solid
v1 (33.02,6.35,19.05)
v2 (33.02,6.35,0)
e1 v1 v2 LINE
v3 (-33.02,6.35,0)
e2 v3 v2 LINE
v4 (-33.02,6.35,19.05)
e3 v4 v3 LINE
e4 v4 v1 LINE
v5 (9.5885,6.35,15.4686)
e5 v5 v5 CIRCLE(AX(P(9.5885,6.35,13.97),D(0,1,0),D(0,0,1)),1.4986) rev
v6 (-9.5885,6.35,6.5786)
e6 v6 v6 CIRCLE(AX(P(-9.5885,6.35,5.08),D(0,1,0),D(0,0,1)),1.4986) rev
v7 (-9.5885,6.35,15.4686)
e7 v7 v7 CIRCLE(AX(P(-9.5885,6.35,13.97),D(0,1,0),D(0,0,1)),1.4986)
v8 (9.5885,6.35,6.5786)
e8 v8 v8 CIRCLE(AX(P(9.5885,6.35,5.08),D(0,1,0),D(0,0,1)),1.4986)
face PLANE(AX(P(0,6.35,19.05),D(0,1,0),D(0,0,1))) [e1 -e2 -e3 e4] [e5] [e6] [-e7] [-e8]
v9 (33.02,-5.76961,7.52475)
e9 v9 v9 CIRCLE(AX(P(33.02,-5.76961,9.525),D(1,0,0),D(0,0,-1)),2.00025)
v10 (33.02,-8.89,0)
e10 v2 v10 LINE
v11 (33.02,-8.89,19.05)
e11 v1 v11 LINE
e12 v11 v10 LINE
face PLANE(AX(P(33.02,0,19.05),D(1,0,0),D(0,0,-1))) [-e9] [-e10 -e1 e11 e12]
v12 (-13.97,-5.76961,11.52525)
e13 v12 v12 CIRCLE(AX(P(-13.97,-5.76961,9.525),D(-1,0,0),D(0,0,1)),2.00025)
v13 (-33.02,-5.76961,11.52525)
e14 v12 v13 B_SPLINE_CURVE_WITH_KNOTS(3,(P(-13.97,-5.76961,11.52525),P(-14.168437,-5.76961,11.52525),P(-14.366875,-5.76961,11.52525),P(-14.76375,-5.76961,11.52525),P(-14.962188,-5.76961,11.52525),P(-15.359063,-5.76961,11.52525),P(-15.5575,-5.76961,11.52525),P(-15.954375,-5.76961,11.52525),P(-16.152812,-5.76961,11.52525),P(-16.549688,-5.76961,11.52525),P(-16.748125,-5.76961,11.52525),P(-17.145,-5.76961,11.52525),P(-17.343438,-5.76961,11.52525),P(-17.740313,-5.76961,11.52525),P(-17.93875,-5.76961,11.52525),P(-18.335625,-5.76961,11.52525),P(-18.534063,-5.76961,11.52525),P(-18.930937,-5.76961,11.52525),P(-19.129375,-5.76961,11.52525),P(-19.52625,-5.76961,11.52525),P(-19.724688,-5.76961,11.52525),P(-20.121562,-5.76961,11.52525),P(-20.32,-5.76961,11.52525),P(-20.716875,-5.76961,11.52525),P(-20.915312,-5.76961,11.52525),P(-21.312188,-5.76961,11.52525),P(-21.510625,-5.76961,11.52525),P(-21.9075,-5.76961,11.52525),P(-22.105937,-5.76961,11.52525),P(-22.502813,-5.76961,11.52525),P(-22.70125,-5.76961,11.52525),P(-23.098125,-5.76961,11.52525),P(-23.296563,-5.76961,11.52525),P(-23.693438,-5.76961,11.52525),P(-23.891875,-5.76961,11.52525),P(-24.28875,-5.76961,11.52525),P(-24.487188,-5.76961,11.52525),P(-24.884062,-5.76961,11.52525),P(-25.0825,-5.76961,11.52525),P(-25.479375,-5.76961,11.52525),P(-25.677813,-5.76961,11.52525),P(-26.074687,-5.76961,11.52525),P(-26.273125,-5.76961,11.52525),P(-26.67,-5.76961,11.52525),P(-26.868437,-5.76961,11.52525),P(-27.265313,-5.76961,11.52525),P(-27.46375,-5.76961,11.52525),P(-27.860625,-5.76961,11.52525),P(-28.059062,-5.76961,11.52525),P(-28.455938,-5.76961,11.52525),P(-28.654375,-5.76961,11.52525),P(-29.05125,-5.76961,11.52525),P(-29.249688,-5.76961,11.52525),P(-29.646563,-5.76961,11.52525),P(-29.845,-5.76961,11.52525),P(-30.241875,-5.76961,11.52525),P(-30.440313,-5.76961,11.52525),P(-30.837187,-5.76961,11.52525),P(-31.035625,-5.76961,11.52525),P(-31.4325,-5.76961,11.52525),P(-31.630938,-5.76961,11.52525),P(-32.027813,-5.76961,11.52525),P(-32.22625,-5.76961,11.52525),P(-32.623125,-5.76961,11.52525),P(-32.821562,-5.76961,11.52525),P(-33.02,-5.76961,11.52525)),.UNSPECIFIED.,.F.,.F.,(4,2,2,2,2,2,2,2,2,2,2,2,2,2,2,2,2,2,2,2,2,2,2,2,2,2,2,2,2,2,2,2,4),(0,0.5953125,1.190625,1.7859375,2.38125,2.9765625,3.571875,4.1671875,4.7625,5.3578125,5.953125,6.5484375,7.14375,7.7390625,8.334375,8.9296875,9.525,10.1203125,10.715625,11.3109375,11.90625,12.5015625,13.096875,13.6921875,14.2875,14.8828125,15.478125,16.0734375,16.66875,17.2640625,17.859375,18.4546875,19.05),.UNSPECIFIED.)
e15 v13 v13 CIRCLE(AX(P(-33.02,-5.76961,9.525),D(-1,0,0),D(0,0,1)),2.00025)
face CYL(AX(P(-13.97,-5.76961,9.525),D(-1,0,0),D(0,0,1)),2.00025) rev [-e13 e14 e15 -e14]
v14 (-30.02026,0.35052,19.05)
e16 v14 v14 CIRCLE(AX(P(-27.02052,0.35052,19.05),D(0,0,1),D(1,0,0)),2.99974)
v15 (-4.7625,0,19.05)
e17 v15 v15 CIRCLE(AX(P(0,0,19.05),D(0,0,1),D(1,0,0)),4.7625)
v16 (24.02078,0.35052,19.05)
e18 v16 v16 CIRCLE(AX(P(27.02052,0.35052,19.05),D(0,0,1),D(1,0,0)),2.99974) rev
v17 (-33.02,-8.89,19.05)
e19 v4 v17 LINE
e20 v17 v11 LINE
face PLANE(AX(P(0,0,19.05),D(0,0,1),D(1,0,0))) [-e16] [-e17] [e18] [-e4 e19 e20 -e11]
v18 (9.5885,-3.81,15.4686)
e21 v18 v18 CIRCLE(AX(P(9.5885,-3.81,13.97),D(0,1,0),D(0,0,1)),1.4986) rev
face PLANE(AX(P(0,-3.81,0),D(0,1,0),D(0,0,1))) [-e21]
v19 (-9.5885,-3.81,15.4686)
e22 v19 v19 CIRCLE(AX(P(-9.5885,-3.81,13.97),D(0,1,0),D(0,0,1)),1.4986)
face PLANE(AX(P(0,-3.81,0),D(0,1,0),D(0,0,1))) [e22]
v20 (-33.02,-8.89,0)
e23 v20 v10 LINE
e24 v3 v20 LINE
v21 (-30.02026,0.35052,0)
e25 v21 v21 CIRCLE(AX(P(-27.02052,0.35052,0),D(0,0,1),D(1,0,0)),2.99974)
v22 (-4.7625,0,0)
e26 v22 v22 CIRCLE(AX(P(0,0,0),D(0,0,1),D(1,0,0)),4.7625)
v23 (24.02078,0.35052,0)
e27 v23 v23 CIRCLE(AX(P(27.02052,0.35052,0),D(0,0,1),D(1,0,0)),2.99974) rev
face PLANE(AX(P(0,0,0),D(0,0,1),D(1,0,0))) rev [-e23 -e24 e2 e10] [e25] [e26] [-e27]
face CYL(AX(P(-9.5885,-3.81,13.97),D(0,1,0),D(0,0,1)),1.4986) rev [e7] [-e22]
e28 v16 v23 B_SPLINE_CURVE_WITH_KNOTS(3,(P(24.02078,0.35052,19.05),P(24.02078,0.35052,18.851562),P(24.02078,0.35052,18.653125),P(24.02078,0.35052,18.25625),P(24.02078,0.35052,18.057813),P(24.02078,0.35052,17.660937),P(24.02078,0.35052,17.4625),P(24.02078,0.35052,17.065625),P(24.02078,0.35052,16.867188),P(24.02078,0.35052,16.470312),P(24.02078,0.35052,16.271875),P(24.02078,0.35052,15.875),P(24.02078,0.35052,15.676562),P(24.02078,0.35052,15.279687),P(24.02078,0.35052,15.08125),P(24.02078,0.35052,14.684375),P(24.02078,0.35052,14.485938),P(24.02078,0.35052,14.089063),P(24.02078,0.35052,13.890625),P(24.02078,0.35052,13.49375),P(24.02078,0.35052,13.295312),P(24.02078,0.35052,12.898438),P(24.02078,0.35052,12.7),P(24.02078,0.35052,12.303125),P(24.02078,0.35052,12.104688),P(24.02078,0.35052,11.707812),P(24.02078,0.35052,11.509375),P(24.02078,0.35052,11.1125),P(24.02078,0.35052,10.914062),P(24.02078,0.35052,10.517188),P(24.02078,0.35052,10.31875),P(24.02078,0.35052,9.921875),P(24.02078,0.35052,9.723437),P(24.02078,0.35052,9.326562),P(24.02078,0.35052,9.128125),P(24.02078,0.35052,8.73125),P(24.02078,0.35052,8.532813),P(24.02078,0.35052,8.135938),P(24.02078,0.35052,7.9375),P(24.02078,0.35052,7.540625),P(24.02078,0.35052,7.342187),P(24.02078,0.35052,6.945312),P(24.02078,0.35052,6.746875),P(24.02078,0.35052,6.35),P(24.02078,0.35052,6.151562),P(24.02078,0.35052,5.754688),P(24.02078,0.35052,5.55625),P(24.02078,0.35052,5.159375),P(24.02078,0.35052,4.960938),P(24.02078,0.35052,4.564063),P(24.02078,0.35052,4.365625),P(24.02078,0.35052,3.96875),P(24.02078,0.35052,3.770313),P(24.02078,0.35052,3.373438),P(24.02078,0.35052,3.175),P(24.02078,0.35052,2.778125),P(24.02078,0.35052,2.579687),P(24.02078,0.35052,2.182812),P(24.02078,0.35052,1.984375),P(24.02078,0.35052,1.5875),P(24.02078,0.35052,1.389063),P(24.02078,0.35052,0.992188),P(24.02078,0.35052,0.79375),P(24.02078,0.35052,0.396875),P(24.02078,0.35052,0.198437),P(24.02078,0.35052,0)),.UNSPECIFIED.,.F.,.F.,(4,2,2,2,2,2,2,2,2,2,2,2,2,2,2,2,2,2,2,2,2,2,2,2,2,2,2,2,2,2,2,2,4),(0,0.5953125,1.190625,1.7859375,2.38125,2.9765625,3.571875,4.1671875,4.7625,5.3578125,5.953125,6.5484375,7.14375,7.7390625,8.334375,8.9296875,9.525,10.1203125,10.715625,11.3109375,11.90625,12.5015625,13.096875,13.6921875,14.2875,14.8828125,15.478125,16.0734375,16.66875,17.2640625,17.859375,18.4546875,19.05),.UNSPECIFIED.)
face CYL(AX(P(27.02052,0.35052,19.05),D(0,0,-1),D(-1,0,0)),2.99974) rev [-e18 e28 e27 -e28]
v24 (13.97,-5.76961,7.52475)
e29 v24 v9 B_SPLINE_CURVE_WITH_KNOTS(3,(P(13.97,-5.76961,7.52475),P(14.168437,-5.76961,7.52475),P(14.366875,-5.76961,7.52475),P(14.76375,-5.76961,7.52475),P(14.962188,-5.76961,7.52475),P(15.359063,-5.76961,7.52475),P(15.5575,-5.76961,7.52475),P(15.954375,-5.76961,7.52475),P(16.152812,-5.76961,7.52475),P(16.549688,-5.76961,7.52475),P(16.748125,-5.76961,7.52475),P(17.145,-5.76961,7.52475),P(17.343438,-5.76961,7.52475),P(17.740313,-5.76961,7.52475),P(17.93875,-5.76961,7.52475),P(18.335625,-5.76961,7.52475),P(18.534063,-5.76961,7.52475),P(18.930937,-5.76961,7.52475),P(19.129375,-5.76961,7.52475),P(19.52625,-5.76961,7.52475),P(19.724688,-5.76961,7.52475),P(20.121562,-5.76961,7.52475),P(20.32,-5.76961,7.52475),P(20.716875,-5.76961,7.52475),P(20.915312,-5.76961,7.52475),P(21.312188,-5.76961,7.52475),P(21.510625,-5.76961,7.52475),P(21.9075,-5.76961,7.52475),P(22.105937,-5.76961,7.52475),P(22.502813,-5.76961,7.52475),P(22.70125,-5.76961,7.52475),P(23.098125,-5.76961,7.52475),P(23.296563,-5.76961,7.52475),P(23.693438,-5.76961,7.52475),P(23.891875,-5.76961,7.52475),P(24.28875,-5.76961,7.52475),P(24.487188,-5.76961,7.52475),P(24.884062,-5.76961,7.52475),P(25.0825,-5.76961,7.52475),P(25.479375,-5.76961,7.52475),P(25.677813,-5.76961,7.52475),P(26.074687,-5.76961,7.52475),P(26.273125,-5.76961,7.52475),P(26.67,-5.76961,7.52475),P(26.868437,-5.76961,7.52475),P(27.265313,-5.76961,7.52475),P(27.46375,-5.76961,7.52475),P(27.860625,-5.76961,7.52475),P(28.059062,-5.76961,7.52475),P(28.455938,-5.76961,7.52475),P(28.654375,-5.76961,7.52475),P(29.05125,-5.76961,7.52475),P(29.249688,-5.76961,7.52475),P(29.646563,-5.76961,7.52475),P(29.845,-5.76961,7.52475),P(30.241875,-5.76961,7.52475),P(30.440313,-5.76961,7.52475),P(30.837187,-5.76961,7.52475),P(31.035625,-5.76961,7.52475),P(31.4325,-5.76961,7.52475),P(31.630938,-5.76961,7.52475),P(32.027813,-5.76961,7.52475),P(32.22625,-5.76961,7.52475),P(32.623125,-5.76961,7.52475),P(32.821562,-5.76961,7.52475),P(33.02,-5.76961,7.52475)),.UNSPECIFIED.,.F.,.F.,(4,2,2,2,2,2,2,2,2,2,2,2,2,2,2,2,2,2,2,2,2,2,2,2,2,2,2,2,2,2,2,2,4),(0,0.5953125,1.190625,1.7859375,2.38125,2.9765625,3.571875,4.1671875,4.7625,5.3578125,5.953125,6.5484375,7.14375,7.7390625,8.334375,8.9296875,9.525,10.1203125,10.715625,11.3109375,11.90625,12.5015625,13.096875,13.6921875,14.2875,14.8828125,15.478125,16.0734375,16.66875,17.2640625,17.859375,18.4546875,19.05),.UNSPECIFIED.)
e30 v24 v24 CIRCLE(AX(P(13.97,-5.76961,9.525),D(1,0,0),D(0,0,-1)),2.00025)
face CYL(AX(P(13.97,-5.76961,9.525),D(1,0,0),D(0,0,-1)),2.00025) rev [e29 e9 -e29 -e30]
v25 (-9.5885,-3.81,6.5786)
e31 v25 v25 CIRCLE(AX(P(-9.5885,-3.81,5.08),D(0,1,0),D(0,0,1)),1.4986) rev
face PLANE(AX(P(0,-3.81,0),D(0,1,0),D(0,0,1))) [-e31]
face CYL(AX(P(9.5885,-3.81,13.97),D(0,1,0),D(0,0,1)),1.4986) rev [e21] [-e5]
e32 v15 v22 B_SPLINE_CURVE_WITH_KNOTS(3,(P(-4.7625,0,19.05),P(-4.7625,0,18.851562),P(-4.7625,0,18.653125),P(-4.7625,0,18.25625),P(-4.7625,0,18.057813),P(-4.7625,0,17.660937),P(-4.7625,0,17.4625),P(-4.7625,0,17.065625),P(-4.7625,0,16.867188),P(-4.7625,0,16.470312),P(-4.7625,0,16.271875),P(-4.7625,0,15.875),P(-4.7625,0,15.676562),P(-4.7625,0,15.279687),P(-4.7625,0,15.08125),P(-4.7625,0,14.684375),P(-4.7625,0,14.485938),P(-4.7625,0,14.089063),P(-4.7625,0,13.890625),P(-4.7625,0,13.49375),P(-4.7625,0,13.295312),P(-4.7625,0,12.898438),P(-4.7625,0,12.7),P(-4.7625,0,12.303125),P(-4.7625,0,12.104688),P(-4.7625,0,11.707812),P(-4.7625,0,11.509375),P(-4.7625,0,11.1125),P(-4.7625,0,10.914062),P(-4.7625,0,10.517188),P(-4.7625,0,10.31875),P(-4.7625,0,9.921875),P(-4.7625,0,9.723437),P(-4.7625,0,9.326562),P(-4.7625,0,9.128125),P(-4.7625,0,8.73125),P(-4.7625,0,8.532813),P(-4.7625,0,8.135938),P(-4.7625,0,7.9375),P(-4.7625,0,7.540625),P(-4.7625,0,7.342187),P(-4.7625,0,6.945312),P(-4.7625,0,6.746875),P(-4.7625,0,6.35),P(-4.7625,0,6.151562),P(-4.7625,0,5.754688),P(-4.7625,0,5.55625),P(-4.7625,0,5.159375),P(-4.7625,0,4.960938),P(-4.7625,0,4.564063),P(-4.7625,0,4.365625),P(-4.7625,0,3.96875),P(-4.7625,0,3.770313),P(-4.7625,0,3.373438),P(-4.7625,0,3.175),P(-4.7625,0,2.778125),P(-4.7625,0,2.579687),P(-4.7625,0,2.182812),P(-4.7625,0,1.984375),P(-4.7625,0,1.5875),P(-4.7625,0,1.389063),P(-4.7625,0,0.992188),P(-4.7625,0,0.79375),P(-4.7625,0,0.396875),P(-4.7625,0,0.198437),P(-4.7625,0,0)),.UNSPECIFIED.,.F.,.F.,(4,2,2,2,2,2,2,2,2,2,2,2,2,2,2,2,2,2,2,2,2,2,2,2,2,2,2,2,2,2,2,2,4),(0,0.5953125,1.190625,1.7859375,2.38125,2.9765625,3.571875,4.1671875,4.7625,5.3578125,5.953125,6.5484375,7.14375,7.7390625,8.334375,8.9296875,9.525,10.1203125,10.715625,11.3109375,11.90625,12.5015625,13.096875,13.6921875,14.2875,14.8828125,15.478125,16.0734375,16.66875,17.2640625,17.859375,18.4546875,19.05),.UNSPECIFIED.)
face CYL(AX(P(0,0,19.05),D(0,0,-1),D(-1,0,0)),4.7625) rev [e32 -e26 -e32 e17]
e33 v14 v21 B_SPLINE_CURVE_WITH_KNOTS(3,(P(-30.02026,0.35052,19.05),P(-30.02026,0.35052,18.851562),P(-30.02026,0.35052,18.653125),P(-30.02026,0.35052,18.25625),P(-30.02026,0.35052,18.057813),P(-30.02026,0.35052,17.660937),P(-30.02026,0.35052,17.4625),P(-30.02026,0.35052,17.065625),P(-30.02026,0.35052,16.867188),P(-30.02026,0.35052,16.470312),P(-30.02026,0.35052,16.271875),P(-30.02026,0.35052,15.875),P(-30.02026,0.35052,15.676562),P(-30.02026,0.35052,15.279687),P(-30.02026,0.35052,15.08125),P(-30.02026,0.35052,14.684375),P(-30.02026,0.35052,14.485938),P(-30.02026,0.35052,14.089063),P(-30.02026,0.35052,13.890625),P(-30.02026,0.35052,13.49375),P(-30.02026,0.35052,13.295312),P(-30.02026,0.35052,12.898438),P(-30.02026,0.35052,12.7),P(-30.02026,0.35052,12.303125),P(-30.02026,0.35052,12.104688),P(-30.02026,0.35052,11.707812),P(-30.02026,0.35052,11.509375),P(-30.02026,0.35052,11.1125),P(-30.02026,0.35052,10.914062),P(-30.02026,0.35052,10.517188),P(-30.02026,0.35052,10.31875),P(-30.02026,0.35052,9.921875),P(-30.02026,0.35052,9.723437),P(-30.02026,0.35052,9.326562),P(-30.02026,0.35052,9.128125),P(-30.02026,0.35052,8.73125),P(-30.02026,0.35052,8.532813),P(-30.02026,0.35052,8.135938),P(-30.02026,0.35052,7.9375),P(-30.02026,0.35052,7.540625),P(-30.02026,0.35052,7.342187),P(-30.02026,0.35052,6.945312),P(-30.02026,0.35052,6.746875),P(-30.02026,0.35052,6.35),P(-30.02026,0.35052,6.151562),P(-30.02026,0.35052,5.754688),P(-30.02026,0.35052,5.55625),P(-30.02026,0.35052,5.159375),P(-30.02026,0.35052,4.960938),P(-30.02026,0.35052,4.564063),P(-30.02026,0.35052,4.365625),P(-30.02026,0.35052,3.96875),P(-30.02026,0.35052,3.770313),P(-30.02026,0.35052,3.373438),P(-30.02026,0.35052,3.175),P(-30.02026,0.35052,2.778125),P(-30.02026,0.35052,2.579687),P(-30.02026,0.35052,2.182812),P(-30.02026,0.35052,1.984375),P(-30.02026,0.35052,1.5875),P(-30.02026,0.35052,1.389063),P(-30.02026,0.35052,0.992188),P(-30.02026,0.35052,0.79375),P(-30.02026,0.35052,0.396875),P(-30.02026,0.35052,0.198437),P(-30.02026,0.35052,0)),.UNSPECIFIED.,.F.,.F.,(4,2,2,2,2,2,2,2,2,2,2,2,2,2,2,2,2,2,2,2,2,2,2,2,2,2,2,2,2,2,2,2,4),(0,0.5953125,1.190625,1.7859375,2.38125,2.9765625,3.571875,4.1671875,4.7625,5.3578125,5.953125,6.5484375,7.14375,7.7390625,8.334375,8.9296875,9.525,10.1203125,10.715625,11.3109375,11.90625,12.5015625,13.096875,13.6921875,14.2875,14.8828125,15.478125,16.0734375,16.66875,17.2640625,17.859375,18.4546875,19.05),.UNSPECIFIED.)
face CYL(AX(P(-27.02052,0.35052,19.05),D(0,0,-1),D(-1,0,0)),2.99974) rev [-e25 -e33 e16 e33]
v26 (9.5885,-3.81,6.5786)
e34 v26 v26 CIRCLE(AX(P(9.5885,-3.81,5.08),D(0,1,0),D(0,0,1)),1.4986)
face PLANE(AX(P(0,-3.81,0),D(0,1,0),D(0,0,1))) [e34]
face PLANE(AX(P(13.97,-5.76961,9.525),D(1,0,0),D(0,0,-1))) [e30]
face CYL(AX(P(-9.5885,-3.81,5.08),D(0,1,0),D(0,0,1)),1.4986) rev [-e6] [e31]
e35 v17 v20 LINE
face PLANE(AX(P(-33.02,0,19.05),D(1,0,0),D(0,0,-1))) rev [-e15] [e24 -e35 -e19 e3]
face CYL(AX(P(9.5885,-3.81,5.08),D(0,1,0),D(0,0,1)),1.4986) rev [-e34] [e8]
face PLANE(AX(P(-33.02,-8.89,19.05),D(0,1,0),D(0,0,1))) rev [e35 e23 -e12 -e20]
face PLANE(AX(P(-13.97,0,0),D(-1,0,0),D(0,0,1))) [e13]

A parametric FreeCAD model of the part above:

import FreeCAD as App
import Part
import Sketcher

V = App.Vector
Q = App.Units.Quantity

doc = App.newDocument("Part")
params = doc.addObject("Spreadsheet::Sheet", "Params")
for row, (alias, value) in enumerate([
    ("sketch1_diameter", "0.375 in"),
    ("sketch1_width", "2.6 in"),
    ("sketch1_height", "0.6 in"),
    ("pad1_length", "0.75 in"),
    ("pocket1_length", "0.75 in"),
    ("pocket2_length", "0.75 in"),
    ("sketch4_diameter", "0.118 in"),
    ("pocket3_length", "0.4 in"),
], start=1):
    params.set(f"A{row}", alias)
    params.set(f"B{row}", "=" + value)
    params.setAlias(f"B{row}", alias)

body = doc.addObject("PartDesign::Body", "Body")

sketch1 = doc.addObject("Sketcher::SketchObject", "Sketch")
body.addObject(sketch1)
sketch1.AttachmentSupport = (doc.XY_Plane, [""])
sketch1.MapMode = "FlatFace"
sketch1.addGeometry([
    Part.LineSegment(V(-33, 6.3, 0), V(-33, -8.9, 0)),
    Part.LineSegment(V(-33, -8.9, 0), V(33, -8.9, 0)),
    Part.LineSegment(V(33, -8.9, 0), V(33, 6.3, 0)),
    Part.LineSegment(V(33, 6.3, 0), V(-33, 6.3, 0)),
    Part.Circle(V(-27, 0.4, 0), V(0, 0, 1), 3),
    Part.Circle(V(0, 0, 0), V(0, 0, 1), 4.8),
    Part.Circle(V(27, 0.4, 0), V(0, 0, 1), 3),
], False)
sketch1.addConstraint([
    Sketcher.Constraint("Coincident", 0, 2, 1, 1),
    Sketcher.Constraint("Coincident", 1, 2, 2, 1),
    Sketcher.Constraint("Coincident", 2, 2, 3, 1),
    Sketcher.Constraint("Coincident", 3, 2, 0, 1),
    Sketcher.Constraint("Vertical", 0),
    Sketcher.Constraint("Horizontal", 1),
    Sketcher.Constraint("Vertical", 2),
    Sketcher.Constraint("Horizontal", 3),
    Sketcher.Constraint("Coincident", 5, 3, -1, 1),
    Sketcher.Constraint("Equal", 4, 6),
    Sketcher.Constraint("Symmetric", 4, 3, 6, 3, -2),
    Sketcher.Constraint("Diameter", 5, Q("0.375 in")),
    Sketcher.Constraint("DistanceX", 1, 1, 1, 2, Q("2.6 in")),
    Sketcher.Constraint("DistanceY", 0, 2, 0, 1, Q("0.6 in")),
    Sketcher.Constraint("Diameter", 4, Q("0.2362 in")),
    Sketcher.Constraint("DistanceX", 0, 2, -1, 1, Q("1.3 in")),
    Sketcher.Constraint("DistanceY", 0, 2, -1, 1, Q("0.35 in")),
    Sketcher.Constraint("DistanceX", 4, 3, -1, 1, Q("1.0638 in")),
    Sketcher.Constraint("DistanceY", -1, 1, 4, 3, Q("0.0138 in")),
])
sketch1.setExpression("Constraints[11]", "Params.sketch1_diameter")
sketch1.setExpression("Constraints[12]", "Params.sketch1_width")
sketch1.setExpression("Constraints[13]", "Params.sketch1_height")
pad1 = doc.addObject("PartDesign::Pad", "Pad")
body.addObject(pad1)
pad1.Profile = sketch1
pad1.setExpression("Length", "Params.pad1_length")

sketch2 = doc.addObject("Sketcher::SketchObject", "Sketch001")
body.addObject(sketch2)
sketch2.AttachmentSupport = (doc.YZ_Plane, [""])
sketch2.MapMode = "FlatFace"
sketch2.AttachmentOffset = App.Placement(V(0, 0, -1.3 * 25.4), App.Rotation())
sketch2.addGeometry(Part.Circle(V(-5.8, 9.5, 0), V(0, 0, 1), 2), False)
sketch2.addConstraint([
    Sketcher.Constraint("Diameter", 0, Q("0.1575 in")),
    Sketcher.Constraint("DistanceY", -1, 1, 0, 3, Q("0.375 in")),
    Sketcher.Constraint("DistanceX", 0, 3, -1, 1, 5.76961),
])
pocket1 = doc.addObject("PartDesign::Pocket", "Pocket")
body.addObject(pocket1)
pocket1.Profile = sketch2
pocket1.setExpression("Length", "Params.pocket1_length")
pocket1.Reversed = True

sketch3 = doc.addObject("Sketcher::SketchObject", "Sketch002")
body.addObject(sketch3)
sketch3.AttachmentSupport = (doc.YZ_Plane, [""])
sketch3.MapMode = "FlatFace"
sketch3.AttachmentOffset = App.Placement(V(0, 0, 0.55 * 25.4), App.Rotation())
sketch3.addGeometry(Part.Circle(V(-5.8, 9.5, 0), V(0, 0, 1), 2), False)
sketch3.addConstraint([
    Sketcher.Constraint("Diameter", 0, Q("0.1575 in")),
    Sketcher.Constraint("DistanceY", -1, 1, 0, 3, Q("0.375 in")),
    Sketcher.Constraint("DistanceX", 0, 3, -1, 1, 5.76961),
])
pocket2 = doc.addObject("PartDesign::Pocket", "Pocket001")
body.addObject(pocket2)
pocket2.Profile = sketch3
pocket2.setExpression("Length", "Params.pocket2_length")
pocket2.Reversed = True

sketch4 = doc.addObject("Sketcher::SketchObject", "Sketch003")
body.addObject(sketch4)
sketch4.AttachmentSupport = (doc.XZ_Plane, [""])
sketch4.MapMode = "FlatFace"
sketch4.AttachmentOffset = App.Placement(V(0, 0, -0.25 * 25.4), App.Rotation())
sketch4.addGeometry([
    Part.Circle(V(9.6, 5.1, 0), V(0, 0, 1), 1.5),
    Part.Circle(V(9.6, 14, 0), V(0, 0, 1), 1.5),
    Part.Circle(V(-9.6, 5.1, 0), V(0, 0, 1), 1.5),
    Part.Circle(V(-9.6, 14, 0), V(0, 0, 1), 1.5),
], False)
sketch4.addConstraint([
    Sketcher.Constraint("Equal", 0, 1),
    Sketcher.Constraint("Equal", 1, 2),
    Sketcher.Constraint("Equal", 2, 3),
    Sketcher.Constraint("Symmetric", 0, 3, 2, 3, -2),
    Sketcher.Constraint("Symmetric", 1, 3, 3, 3, -2),
    Sketcher.Constraint("Vertical", 0, 3, 1, 3),
    Sketcher.Constraint("Diameter", 0, Q("0.118 in")),
    Sketcher.Constraint("DistanceY", -1, 1, 0, 3, Q("0.2 in")),
    Sketcher.Constraint("DistanceY", -1, 1, 1, 3, Q("0.55 in")),
    Sketcher.Constraint("DistanceX", 2, 3, 0, 3, Q("0.755 in")),
])
sketch4.setExpression("Constraints[6]", "Params.sketch4_diameter")
pocket3 = doc.addObject("PartDesign::Pocket", "Pocket002")
body.addObject(pocket3)
pocket3.Profile = sketch4
pocket3.setExpression("Length", "Params.pocket3_length")
pocket3.Reversed = True

doc.recompute()
